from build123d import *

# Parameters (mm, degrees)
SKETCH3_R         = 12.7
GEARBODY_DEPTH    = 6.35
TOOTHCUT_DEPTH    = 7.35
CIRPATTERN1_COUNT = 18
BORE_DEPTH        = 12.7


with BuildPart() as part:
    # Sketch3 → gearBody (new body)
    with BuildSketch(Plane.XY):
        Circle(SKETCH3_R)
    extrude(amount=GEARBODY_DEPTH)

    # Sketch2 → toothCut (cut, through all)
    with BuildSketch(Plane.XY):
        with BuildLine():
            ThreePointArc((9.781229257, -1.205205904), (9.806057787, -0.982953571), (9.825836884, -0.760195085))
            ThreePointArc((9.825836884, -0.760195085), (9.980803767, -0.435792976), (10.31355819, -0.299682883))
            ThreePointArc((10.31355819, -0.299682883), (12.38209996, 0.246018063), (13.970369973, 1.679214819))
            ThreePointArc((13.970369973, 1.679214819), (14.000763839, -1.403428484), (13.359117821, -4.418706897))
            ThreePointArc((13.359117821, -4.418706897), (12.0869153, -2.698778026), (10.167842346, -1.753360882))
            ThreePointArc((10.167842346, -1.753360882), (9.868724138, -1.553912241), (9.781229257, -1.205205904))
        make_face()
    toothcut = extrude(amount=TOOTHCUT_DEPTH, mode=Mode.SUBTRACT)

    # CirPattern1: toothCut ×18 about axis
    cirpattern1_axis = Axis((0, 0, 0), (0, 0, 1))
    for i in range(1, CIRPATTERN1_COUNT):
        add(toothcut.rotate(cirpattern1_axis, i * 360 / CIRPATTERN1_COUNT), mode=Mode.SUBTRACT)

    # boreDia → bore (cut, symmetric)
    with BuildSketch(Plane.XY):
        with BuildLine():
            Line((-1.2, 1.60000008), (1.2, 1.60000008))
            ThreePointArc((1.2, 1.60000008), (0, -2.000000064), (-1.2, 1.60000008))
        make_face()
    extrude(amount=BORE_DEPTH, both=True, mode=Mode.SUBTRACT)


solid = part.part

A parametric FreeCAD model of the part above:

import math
import FreeCAD as App
import Part
import Sketcher
from FreeCAD import Vector
Q = App.Units.Quantity

doc = App.newDocument("Part")
params = doc.addObject("Spreadsheet::Sheet", "Params")
for row, (alias, value) in enumerate([
    ("sketch1_diameter", "1 in"),
    ("pad1_length", "0.25 in"),
    ("sketch2_radius", "0.388 in"),
    ("pocket2_length", "1 in"),
], start=1):
    params.set(f"A{row}", alias)
    params.set(f"B{row}", "=" + value)
    params.setAlias(f"B{row}", alias)

body = doc.addObject("PartDesign::Body", "Body")

sketch1 = body.newObject("Sketcher::SketchObject", "Sketch")
sketch1.AttachmentSupport = (doc.getObject("XY_Plane"), [""])
sketch1.MapMode = "FlatFace"
sketch1.addGeometry(Part.Circle(Vector(0, 0, 0), Vector(0, 0, 1), 12.7), False)
sketch1.addConstraint([
    Sketcher.Constraint("Coincident", 0, 3, -1, 1),
    Sketcher.Constraint("Diameter", 0, Q("1 in")),
])
sketch1.setExpression("Constraints[1]", "Params.sketch1_diameter")
pad1 = body.newObject("PartDesign::Pad", "Pad")
pad1.Profile = sketch1
pad1.setExpression("Length", "Params.pad1_length")

sketch2 = body.newObject("Sketcher::SketchObject", "Sketch001")
sketch2.AttachmentSupport = (doc.getObject("XY_Plane"), [""])
sketch2.MapMode = "FlatFace"
sketch2.addGeometry([
    Part.ArcOfCircle(Part.Circle(Vector(0, 0, 0), Vector(0, 0, 1), 9.8552), math.radians(-7.024362), math.radians(-4.423987)),
    Part.ArcOfCircle(Part.Circle(Vector(10.276593, -1.266243, 0), Vector(0, 0, 1), 0.49911), math.radians(172.975637), math.radians(257.41491)),
    Part.ArcOfCircle(Part.Circle(Vector(9.179644, -6.179715, 0), Vector(0, 0, 1), 4.535323), math.radians(22.847978), math.radians(77.41491)),
    Part.ArcOfCircle(Part.Circle(Vector(0, 0, 0), Vector(0, 0, 1), 14.070927), math.radians(-18.302324), math.radians(6.853974)),
    Part.ArcOfCircle(Part.Circle(Vector(10.223584, 4.234747, 0), Vector(0, 0, 1), 4.535323), math.radians(-88.86326), math.radians(-34.296328)),
    Part.ArcOfCircle(Part.Circle(Vector(10.32346, -0.798695, 0), Vector(0, 0, 1), 0.49911), math.radians(91.13674), math.radians(175.576013)),
], False)
sketch2.addConstraint([
    Sketcher.Constraint("Tangent", 0, 1, 1, 1),
    Sketcher.Constraint("Tangent", 1, 2, 2, 2),
    Sketcher.Constraint("Coincident", 2, 1, 3, 1),
    Sketcher.Constraint("Coincident", 3, 2, 4, 2),
    Sketcher.Constraint("Tangent", 4, 1, 5, 1),
    Sketcher.Constraint("Tangent", 5, 2, 0, 2),
    Sketcher.Constraint("Coincident", 0, 3, -1, 1),
    Sketcher.Constraint("Coincident", 3, 3, -1, 1),
    Sketcher.Constraint("Equal", 2, 4),
    Sketcher.Constraint("Equal", 1, 5),
    Sketcher.Constraint("Radius", 0, Q("0.388 in")),
    Sketcher.Constraint("Radius", 1, 0.49911),
    Sketcher.Constraint("Radius", 2, 4.535323),
    Sketcher.Constraint("Radius", 3, 14.070927),
    Sketcher.Constraint("DistanceX", 2, 3, 4, 3, Q("0.0411 in")),
    Sketcher.Constraint("DistanceX", 2, 3, 1, 2, 0.988198),
    Sketcher.Constraint("DistanceY", 2, 1, 0, 1, 3.213501),
    Sketcher.Constraint("DistanceY", 5, 3, 5, 2, 0.0385),
])
sketch2.setExpression("Constraints[10]", "Params.sketch2_radius")
pocket1 = body.newObject("PartDesign::Pocket", "Pocket")
pocket1.Profile = sketch2
pocket1.Type = "ThroughAll"
pocket1.Reversed = True
doc.recompute()

polarpattern = body.newObject("PartDesign::PolarPattern", "PolarPattern")
polarpattern.Originals = [pocket1]
polarpattern.Axis = (doc.getObject("Z_Axis"), [""])
polarpattern.Angle = 360
polarpattern.Occurrences = 18
body.Tip = polarpattern

sketch3 = body.newObject("Sketcher::SketchObject", "Sketch002")
sketch3.AttachmentSupport = (doc.getObject("XY_Plane"), [""])
sketch3.MapMode = "FlatFace"
sketch3.addGeometry([
    Part.LineSegment(Vector(1.2, 1.6, 0), Vector(-1.2, 1.6, 0)),
    Part.ArcOfCircle(Part.Circle(Vector(0, 0, 0), Vector(0, 0, 1), 2), math.radians(126.869896), math.radians(413.130104)),
], False)
sketch3.addConstraint([
    Sketcher.Constraint("Coincident", 0, 1, 1, 2),
    Sketcher.Constraint("Coincident", 1, 1, 0, 2),
    Sketcher.Constraint("Horizontal", 0),
    Sketcher.Constraint("Coincident", 1, 3, -1, 1),
    Sketcher.Constraint("Radius", 1, 2.0),
    Sketcher.Constraint("DistanceX", 0, 2, 0, 1, 2.4),
])
pocket2 = body.newObject("PartDesign::Pocket", "Pocket001")
pocket2.Profile = sketch3
pocket2.setExpression("Length", "Params.pocket2_length")
pocket2.Midplane = True

doc.recompute()
